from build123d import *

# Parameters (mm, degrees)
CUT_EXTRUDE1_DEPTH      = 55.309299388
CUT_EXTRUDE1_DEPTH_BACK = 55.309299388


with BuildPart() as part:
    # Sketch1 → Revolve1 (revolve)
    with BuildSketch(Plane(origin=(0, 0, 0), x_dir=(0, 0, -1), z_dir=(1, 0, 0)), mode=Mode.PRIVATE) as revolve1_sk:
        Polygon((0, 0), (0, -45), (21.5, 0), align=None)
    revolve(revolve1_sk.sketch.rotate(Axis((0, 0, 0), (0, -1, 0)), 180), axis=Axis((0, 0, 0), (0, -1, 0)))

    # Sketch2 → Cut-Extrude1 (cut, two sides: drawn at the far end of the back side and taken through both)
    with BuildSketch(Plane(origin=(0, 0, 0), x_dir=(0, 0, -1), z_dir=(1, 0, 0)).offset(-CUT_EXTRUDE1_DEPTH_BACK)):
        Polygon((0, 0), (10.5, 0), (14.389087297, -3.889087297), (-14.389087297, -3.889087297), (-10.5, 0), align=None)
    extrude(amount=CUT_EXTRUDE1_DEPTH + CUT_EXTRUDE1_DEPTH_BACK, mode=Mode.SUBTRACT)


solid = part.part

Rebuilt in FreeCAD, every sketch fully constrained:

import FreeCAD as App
import Part
import Sketcher
Q = App.Units.Quantity


def add_polygon(sketch, points):
    """Adds a closed chain of lines whose ends are joined by coincident constraints."""
    first, n = sketch.GeometryCount, len(points)
    for a, b in zip(points, points[1:] + points[:1]):
        sketch.addGeometry(Part.LineSegment(App.Vector(*a, 0), App.Vector(*b, 0)), False)
    for i in range(n):
        sketch.addConstraint(Sketcher.Constraint("Coincident", first + i, 2, first + (i + 1) % n, 1))

doc = App.newDocument("Part")
params = doc.addObject("Spreadsheet::Sheet", "Params")
for row, (alias, value) in enumerate([
    ("sketch1_width", "45 mm"),
    ("sketch1_height", "21.5 mm"),
    ("revolution_angle", "360 deg"),
    ("sketch2_height", "21 mm"),
    ("sketch2_length", "5.5 mm"),
], start=1):
    params.set(f"A{row}", alias)
    params.set(f"B{row}", "=" + value)
    params.setAlias(f"B{row}", alias)

body = doc.addObject("PartDesign::Body", "Body")

# Sketch on YZ plane
sketch1 = body.newObject("Sketcher::SketchObject", "Sketch")
sketch1.AttachmentSupport = (doc.getObject("YZ_Plane"), [""])
sketch1.MapMode = "FlatFace"
add_polygon(sketch1, [(0, 0), (-45, 0), (0, -22)])  # lines 0-2
sketch1.addConstraint([
    Sketcher.Constraint("Horizontal", 0),
    Sketcher.Constraint("Vertical", 2),
    Sketcher.Constraint("Coincident", 2, 2, -1, 1),
    Sketcher.Constraint("DistanceX", 0, 2, 0, 1, Q("45 mm")),
    Sketcher.Constraint("DistanceY", 2, 1, 2, 2, Q("21.5 mm")),
])
sketch1.setExpression("Constraints[6]", "Params.sketch1_width")
sketch1.setExpression("Constraints[7]", "Params.sketch1_height")
revolution = body.newObject("PartDesign::Revolution", "Revolution")
revolution.Profile = sketch1
revolution.ReferenceAxis = (sketch1, ["H_Axis"])
revolution.setExpression("Angle", "Params.revolution_angle")

# Sketch on YZ plane
sketch2 = body.newObject("Sketcher::SketchObject", "Sketch001")
sketch2.AttachmentSupport = (doc.getObject("YZ_Plane"), [""])
sketch2.MapMode = "FlatFace"
add_polygon(sketch2, [(0, -10), (0, 10), (-4, 14), (-4, -14)])  # lines 0-3
sketch2.addConstraint([
    Sketcher.Constraint("Vertical", 0),
    Sketcher.Constraint("Vertical", 2),
    Sketcher.Constraint("Symmetric", 0, 2, 3, 2, -1, 1),
    Sketcher.Constraint("Perpendicular", 1, 3),
    Sketcher.Constraint("Equal", 1, 3),
    Sketcher.Constraint("DistanceY", 0, 1, 0, 2, Q("21 mm")),
    Sketcher.Constraint("Distance", 1, Q("5.5 mm")),
])
sketch2.setExpression("Constraints[9]", "Params.sketch2_height")
sketch2.setExpression("Constraints[10]", "Params.sketch2_length")
pocket1 = body.newObject("PartDesign::Pocket", "Pocket")
pocket1.Profile = sketch2
pocket1.Type = "ThroughAll"
pocket1.Midplane = True

doc.recompute()
